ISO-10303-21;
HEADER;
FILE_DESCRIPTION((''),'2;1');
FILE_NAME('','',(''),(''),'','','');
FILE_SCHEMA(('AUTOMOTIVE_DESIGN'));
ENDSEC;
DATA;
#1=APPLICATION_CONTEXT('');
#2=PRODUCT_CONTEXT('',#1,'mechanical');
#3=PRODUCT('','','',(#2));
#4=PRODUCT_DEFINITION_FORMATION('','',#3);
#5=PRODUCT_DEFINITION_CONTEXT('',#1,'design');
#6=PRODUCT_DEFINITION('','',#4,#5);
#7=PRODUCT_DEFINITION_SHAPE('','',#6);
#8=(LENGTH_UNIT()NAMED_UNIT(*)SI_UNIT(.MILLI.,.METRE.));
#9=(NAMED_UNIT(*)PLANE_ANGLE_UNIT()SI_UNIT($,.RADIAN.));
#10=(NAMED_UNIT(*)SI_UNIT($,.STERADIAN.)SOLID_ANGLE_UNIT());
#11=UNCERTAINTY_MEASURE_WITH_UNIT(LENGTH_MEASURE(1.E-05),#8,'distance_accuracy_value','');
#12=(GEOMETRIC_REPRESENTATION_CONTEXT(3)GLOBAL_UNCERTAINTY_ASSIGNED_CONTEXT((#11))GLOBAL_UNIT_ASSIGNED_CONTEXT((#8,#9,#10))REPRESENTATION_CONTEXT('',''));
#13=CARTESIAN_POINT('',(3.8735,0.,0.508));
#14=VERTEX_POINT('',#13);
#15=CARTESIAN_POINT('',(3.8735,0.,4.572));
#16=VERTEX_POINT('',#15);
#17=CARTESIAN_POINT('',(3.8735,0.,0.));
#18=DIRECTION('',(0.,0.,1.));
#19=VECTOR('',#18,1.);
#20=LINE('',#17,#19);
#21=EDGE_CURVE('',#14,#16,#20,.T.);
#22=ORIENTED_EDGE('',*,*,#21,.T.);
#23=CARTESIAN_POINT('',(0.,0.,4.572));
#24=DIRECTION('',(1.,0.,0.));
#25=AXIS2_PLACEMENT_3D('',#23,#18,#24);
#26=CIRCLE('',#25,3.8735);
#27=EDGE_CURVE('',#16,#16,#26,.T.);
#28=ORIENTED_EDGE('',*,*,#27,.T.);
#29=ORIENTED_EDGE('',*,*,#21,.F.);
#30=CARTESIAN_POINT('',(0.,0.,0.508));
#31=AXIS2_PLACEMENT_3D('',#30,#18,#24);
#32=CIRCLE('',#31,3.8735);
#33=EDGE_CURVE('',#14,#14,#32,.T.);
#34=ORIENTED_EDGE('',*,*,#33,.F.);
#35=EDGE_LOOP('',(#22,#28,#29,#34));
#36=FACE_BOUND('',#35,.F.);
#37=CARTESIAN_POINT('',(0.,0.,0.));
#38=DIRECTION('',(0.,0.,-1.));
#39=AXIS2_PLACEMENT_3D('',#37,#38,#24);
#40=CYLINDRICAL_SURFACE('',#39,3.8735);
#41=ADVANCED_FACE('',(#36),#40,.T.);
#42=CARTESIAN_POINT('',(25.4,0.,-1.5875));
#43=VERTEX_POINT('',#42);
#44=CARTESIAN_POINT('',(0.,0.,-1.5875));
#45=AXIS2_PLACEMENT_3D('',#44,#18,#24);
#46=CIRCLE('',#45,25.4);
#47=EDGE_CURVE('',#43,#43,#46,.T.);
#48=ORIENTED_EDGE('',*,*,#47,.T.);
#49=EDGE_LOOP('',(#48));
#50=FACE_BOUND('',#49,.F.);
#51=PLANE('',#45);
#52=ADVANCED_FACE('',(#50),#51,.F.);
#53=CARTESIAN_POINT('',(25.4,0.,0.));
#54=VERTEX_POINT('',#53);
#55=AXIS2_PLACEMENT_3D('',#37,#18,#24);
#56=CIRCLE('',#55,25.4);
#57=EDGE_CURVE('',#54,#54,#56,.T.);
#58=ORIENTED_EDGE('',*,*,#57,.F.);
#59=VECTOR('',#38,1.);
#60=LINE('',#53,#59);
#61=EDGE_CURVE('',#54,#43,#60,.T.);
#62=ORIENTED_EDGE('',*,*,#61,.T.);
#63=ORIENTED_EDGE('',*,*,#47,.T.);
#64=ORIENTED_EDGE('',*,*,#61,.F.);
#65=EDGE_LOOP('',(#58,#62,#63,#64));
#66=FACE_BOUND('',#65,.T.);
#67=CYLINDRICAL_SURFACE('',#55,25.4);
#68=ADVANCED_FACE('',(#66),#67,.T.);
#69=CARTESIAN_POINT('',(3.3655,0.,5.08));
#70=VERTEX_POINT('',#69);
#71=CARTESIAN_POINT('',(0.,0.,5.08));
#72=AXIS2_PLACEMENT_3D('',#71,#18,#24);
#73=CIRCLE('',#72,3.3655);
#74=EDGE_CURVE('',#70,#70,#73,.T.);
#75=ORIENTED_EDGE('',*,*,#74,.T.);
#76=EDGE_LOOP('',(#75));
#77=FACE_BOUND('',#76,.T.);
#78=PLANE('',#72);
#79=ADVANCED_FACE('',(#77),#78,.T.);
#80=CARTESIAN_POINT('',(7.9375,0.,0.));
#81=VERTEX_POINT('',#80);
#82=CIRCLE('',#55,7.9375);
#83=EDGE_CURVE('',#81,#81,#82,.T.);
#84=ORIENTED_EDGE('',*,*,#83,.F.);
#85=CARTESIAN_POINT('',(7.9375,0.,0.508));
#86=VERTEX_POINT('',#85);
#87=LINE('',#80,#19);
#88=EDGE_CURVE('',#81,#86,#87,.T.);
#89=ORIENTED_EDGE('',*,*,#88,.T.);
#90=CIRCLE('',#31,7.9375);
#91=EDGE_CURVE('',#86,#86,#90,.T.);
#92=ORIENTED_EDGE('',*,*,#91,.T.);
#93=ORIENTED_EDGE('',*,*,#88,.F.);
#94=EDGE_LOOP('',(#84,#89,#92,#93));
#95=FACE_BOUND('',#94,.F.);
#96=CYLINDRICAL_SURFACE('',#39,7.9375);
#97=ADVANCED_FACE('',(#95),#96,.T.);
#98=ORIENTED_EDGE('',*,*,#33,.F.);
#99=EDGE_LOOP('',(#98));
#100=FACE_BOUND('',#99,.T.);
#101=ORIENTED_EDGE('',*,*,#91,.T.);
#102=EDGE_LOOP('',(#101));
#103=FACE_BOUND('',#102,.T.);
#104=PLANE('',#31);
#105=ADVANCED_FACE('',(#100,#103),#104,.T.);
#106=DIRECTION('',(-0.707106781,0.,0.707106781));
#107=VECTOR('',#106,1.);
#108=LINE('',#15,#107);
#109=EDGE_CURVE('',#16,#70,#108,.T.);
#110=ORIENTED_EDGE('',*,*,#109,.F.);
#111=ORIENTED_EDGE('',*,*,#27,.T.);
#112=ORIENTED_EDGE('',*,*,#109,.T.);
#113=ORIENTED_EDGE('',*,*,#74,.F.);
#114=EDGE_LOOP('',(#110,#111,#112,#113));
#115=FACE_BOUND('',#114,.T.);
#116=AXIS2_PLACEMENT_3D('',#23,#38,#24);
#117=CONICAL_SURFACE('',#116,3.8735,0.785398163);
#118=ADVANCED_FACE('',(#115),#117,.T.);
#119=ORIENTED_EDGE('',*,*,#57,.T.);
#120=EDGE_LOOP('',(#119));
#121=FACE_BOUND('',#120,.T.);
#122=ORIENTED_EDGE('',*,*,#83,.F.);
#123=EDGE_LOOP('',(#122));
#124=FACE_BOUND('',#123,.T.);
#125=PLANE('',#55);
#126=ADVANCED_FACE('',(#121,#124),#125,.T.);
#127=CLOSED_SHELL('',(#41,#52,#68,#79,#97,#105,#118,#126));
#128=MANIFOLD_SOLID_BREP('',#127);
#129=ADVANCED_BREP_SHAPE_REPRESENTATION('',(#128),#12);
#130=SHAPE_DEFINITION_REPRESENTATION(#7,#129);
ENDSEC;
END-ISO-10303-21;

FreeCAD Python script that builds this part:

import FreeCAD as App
import Part
import Sketcher
from FreeCAD import Vector
Q = App.Units.Quantity


def edges_at(feature, points):
    """Names of the edges that pass closest to the given points."""
    edges = feature.Shape.Edges
    near = lambda p: min(range(len(edges)), key=lambda i: edges[i].distToShape(Part.Vertex(*p))[0])
    return sorted({f"Edge{near(p) + 1}" for p in points})

doc = App.newDocument("Part")
body = doc.addObject("PartDesign::Body", "Body")

# Sketch on XY plane
sketch1 = doc.addObject("Sketcher::SketchObject", "Sketch")
body.addObject(sketch1)
sketch1.AttachmentSupport = (doc.XY_Plane, [""])
sketch1.MapMode = "FlatFace"
sketch1.addGeometry(Part.Circle(Vector(0, 0, 0), Vector(0, 0, 1), 25), False)
sketch1.addConstraint(Sketcher.Constraint("Coincident", 0, 3, -1, 1))
sketch1.addConstraint(Sketcher.Constraint("Diameter", 0, Q("2 in")))
pad1 = doc.addObject("PartDesign::Pad", "Pad")
body.addObject(pad1)
pad1.Profile = sketch1
pad1.Length = Q("0.0625 in")
pad1.Reversed = True

# Sketch on XY plane
sketch2 = doc.addObject("Sketcher::SketchObject", "Sketch001")
body.addObject(sketch2)
sketch2.AttachmentSupport = (doc.XY_Plane, [""])
sketch2.MapMode = "FlatFace"
sketch2.addGeometry(Part.Circle(Vector(0, 0, 0), Vector(0, 0, 1), 3.9), False)
sketch2.addConstraint(Sketcher.Constraint("Coincident", 0, 3, -1, 1))
sketch2.addConstraint(Sketcher.Constraint("Diameter", 0, Q("0.305 in")))
pad2 = doc.addObject("PartDesign::Pad", "Pad001")
body.addObject(pad2)
pad2.Profile = sketch2
pad2.Length = Q("0.2 in")
doc.recompute()

chamfer = doc.addObject("PartDesign::Chamfer", "Chamfer")
body.addObject(chamfer)
chamfer.Base = (pad2, edges_at(pad2, [(-3.873, 0, 5.08)]))
chamfer.Size = Q("0.02 in")

# Sketch on XY plane
sketch3 = doc.addObject("Sketcher::SketchObject", "Sketch002")
body.addObject(sketch3)
sketch3.AttachmentSupport = (doc.XY_Plane, [""])
sketch3.MapMode = "FlatFace"
sketch3.addGeometry(Part.Circle(Vector(0, 0, 0), Vector(0, 0, 1), 7.9), False)
sketch3.addGeometry(Part.Circle(Vector(0, 0, 0), Vector(0, 0, 1), 3.9), False)
sketch3.addConstraint(Sketcher.Constraint("Coincident", 0, 3, -1, 1))
sketch3.addConstraint(Sketcher.Constraint("Coincident", 1, 3, -1, 1))
sketch3.addConstraint(Sketcher.Constraint("Diameter", 0, Q("0.625 in")))
sketch3.addConstraint(Sketcher.Constraint("Diameter", 1, Q("0.305 in")))
pad3 = doc.addObject("PartDesign::Pad", "Pad002")
body.addObject(pad3)
pad3.Profile = sketch3
pad3.Length = Q("0.02 in")

doc.recompute()
